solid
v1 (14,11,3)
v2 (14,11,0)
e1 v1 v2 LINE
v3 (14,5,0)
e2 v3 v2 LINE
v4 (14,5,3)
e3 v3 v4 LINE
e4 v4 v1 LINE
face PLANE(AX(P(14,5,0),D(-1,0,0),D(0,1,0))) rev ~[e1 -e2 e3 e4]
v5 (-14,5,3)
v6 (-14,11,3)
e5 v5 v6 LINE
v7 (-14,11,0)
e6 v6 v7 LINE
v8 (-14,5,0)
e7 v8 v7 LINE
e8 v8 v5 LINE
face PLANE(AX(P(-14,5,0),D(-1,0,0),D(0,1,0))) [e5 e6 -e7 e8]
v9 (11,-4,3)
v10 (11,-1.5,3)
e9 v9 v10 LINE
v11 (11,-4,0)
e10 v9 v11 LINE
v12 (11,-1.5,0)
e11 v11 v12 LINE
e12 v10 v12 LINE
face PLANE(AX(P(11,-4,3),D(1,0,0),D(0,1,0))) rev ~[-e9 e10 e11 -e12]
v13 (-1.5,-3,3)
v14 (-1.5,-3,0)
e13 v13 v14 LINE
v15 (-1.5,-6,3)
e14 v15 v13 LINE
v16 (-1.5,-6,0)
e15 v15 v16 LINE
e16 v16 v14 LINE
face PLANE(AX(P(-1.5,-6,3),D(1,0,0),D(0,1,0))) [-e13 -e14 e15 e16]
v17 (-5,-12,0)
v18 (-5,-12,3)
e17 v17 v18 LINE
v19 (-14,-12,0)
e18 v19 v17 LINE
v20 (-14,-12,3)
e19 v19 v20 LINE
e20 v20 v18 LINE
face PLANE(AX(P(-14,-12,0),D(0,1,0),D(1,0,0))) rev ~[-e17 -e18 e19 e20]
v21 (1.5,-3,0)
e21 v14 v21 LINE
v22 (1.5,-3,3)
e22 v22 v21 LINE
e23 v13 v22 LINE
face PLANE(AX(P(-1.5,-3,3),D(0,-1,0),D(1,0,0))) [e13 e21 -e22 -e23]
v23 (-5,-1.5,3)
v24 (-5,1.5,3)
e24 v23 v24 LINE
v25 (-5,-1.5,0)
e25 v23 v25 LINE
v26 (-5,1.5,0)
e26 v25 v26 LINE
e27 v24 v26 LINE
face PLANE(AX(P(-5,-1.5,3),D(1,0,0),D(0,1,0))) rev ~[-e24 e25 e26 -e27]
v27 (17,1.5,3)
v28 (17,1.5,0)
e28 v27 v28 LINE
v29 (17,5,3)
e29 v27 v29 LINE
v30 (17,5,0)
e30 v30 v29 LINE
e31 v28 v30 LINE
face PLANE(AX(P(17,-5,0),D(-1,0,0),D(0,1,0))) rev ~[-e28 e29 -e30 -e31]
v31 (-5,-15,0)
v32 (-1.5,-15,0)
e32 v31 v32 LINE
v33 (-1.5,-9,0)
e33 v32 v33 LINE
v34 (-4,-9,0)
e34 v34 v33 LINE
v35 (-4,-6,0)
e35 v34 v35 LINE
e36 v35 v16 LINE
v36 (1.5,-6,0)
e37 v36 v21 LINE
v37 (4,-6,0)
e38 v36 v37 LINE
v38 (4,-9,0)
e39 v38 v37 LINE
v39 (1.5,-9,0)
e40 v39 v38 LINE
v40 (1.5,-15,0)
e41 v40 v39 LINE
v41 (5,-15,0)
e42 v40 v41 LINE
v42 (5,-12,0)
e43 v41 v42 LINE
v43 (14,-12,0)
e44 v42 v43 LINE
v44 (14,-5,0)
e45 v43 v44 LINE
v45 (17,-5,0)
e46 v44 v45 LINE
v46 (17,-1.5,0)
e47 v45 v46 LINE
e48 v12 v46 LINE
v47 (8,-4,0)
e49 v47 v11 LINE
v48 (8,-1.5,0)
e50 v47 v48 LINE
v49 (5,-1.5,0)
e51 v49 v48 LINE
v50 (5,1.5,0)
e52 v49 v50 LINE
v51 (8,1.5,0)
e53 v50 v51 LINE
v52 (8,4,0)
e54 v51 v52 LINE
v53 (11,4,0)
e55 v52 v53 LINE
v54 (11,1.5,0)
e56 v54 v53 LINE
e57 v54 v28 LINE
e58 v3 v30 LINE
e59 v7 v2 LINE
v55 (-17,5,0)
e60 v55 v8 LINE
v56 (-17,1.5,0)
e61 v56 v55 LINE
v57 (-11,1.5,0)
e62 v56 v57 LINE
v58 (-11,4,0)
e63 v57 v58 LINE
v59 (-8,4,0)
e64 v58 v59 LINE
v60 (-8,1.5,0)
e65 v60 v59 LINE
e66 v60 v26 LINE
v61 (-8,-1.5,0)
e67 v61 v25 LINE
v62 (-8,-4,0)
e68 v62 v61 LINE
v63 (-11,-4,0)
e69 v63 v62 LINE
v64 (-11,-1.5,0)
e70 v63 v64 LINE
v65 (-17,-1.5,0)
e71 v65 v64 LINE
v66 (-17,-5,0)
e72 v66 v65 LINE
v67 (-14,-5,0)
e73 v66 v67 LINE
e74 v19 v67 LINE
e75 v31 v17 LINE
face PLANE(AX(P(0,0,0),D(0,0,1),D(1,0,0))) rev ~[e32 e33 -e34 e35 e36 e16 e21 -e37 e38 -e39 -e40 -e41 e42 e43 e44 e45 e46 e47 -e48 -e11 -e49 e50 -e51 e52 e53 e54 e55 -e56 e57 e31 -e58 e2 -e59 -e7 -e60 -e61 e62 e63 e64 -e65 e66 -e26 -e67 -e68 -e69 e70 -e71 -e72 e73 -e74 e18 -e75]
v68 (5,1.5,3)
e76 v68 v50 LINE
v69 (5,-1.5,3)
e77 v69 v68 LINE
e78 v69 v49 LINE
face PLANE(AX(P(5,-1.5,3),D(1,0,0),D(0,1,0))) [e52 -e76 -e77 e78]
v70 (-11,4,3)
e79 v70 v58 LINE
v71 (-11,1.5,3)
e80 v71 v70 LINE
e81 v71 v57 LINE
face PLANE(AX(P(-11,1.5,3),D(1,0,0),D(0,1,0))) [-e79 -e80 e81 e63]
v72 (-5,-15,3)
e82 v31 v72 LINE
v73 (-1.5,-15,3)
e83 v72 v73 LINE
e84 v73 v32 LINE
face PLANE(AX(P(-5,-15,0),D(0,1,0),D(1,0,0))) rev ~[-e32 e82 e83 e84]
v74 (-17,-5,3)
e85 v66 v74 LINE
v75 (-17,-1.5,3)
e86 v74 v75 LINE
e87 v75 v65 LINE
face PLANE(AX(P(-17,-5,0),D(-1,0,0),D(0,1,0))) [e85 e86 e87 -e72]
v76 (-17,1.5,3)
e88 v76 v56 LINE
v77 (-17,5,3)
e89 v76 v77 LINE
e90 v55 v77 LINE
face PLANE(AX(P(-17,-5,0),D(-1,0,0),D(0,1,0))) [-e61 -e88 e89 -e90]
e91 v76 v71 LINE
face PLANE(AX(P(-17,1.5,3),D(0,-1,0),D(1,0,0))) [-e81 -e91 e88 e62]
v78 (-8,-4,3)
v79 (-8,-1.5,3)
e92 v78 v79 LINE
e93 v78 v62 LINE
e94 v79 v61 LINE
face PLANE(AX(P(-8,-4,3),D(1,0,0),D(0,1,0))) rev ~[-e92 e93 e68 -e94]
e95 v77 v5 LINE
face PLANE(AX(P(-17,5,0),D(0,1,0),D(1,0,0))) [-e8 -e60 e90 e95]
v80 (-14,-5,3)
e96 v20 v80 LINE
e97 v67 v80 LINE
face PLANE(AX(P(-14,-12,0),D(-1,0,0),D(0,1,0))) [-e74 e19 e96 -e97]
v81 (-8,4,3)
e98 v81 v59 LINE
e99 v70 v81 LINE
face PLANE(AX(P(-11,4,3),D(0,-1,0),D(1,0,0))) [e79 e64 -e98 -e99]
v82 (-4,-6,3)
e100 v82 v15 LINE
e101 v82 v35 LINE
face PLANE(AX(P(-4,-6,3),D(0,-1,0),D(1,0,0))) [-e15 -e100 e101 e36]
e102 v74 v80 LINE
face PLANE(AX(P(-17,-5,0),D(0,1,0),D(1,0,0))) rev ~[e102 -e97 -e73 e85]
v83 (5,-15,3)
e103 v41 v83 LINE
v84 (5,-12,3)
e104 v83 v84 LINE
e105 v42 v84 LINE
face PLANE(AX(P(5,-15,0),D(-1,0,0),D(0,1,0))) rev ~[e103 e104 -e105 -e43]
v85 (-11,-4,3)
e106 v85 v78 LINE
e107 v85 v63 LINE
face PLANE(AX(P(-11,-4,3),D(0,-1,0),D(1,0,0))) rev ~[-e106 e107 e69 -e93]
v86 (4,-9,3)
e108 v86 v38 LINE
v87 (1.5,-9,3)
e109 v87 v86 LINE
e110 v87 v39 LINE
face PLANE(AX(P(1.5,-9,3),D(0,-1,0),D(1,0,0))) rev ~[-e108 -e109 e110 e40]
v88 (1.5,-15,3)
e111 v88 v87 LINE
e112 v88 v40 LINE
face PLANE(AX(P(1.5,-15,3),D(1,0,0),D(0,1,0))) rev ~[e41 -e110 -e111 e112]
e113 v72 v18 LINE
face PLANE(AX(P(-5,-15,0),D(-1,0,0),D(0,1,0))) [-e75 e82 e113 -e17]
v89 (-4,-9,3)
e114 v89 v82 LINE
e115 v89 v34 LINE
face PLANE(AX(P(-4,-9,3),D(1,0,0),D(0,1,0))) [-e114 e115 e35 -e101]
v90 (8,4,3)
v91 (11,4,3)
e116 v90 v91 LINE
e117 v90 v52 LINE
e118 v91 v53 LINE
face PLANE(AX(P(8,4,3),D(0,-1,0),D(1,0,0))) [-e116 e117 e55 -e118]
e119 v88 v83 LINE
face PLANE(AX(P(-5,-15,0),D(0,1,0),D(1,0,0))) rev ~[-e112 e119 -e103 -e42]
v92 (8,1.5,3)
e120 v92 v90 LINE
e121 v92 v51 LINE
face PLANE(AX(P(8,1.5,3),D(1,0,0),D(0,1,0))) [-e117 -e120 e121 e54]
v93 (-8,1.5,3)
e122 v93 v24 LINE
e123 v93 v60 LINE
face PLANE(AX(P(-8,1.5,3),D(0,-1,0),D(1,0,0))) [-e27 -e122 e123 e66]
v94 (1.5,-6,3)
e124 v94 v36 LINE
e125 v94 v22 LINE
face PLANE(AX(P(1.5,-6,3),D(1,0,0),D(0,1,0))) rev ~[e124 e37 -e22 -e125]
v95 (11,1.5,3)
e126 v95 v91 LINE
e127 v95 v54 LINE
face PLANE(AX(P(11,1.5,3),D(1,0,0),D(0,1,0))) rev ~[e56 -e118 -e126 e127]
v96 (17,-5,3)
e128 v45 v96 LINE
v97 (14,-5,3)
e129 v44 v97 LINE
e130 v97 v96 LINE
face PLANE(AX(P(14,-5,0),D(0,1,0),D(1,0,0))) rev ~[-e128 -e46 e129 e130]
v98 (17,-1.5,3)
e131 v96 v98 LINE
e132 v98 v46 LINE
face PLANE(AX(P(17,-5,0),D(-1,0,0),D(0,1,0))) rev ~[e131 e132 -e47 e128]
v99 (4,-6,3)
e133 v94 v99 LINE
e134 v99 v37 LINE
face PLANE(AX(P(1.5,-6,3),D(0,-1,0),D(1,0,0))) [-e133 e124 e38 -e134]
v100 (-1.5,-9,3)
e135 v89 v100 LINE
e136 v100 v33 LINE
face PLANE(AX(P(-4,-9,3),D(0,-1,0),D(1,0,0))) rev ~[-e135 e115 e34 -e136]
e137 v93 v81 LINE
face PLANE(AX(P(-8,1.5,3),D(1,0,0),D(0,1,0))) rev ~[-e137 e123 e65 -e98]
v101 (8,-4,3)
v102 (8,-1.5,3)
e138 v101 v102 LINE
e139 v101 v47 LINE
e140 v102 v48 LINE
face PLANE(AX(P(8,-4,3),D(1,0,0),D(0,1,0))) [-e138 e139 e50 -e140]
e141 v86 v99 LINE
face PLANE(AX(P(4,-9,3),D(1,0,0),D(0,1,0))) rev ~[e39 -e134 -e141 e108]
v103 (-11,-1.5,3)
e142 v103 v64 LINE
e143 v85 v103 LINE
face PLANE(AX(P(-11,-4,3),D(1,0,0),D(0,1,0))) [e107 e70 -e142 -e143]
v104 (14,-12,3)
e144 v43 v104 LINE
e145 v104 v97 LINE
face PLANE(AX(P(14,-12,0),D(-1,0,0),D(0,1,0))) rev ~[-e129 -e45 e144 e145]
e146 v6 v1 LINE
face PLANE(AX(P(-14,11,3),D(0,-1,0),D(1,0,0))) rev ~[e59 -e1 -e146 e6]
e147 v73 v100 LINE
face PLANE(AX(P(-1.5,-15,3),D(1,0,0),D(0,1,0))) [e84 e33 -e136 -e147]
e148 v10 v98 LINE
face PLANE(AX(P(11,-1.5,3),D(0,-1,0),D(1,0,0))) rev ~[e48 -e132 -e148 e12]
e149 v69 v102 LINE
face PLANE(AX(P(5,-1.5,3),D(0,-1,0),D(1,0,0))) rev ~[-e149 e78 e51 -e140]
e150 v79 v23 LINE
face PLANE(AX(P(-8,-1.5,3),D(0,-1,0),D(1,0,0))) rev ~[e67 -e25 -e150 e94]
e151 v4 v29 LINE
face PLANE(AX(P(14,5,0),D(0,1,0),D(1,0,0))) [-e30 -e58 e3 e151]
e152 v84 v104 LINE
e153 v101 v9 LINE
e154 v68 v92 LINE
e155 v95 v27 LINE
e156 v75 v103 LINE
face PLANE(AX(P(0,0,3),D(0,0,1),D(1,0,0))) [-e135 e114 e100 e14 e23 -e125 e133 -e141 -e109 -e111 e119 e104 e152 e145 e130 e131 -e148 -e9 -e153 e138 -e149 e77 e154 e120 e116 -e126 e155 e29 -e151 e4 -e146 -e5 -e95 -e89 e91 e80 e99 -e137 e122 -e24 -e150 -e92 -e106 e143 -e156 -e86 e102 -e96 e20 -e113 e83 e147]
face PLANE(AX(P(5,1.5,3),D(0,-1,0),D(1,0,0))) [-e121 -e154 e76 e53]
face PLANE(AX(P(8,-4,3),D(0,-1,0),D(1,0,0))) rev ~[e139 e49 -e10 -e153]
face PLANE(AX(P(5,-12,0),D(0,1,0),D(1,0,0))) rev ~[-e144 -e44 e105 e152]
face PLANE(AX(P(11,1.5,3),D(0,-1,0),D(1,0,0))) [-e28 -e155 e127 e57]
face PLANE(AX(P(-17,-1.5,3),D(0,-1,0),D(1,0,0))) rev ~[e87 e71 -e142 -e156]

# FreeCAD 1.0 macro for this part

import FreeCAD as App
import Part
import Sketcher


def add_polygon(sketch, points):
    """Adds a closed chain of lines whose ends are joined by coincident constraints."""
    first, n = sketch.GeometryCount, len(points)
    for a, b in zip(points, points[1:] + points[:1]):
        sketch.addGeometry(Part.LineSegment(App.Vector(*a, 0), App.Vector(*b, 0)), False)
    for i in range(n):
        sketch.addConstraint(Sketcher.Constraint("Coincident", first + i, 2, first + (i + 1) % n, 1))

doc = App.newDocument("Part")
body = doc.addObject("PartDesign::Body", "Body")

# Sketch on XY plane
sketch1 = body.newObject("Sketcher::SketchObject", "Sketch")
sketch1.AttachmentSupport = (doc.getObject("XY_Plane"), [""])
sketch1.MapMode = "FlatFace"
add_polygon(sketch1, [(-14, -5), (-14, -12), (-5, -12), (-5, -15), (5, -15), (5, -12), (14, -12), (14, -5), (17, -5), (17, 5), (14, 5), (14, 12), (-14, 12), (-14, 5), (-17, 5), (-17, -5)])  # lines 0-15
sketch1.addConstraint([
    Sketcher.Constraint("Vertical", 0),
    Sketcher.Constraint("Horizontal", 1),
    Sketcher.Constraint("Vertical", 2),
    Sketcher.Constraint("Horizontal", 3),
    Sketcher.Constraint("Vertical", 4),
    Sketcher.Constraint("Horizontal", 5),
    Sketcher.Constraint("Vertical", 6),
    Sketcher.Constraint("Horizontal", 7),
    Sketcher.Constraint("Vertical", 8),
    Sketcher.Constraint("Horizontal", 9),
    Sketcher.Constraint("Vertical", 10),
    Sketcher.Constraint("Horizontal", 11),
    Sketcher.Constraint("Vertical", 12),
    Sketcher.Constraint("Horizontal", 13),
    Sketcher.Constraint("Vertical", 14),
    Sketcher.Constraint("Horizontal", 15),
    Sketcher.Constraint("Symmetric", 0, 2, 10, 2, -1, 1),
    Sketcher.Constraint("Symmetric", 5, 2, 11, 2, -1, 1),
    Sketcher.Constraint("Symmetric", 7, 2, 13, 2, -1, 1),
    Sketcher.Constraint("Symmetric", 9, 2, 12, 2, -2),
    Sketcher.Constraint("Horizontal", 7, 2, 14, 2),
    Sketcher.Constraint("Equal", 1, 5),
    Sketcher.Constraint("Equal", 15, 2),
    Sketcher.Constraint("Equal", 3, 8),
    Sketcher.Constraint("DistanceX", 1, 1, 1, 2, 9.0),
    Sketcher.Constraint("DistanceX", 3, 1, 3, 2, 10.0),
    Sketcher.Constraint("DistanceX", 7, 1, 7, 2, 3.0),
    Sketcher.Constraint("DistanceY", 0, 2, 0, 1, 7.0),
])
pad1 = body.newObject("PartDesign::Pad", "Pad")
pad1.Profile = sketch1
pad1.Length = 3

# Sketch on XY plane
sketch2 = body.newObject("Sketcher::SketchObject", "Sketch001")
sketch2.AttachmentSupport = (doc.getObject("XY_Plane"), [""])
sketch2.MapMode = "FlatFace"
sketch2.AttachmentOffset = App.Placement(App.Vector(0, 0, 3), App.Rotation())
add_polygon(sketch2, [(-17, 1.5), (-17, -1.5), (-11, -1.5), (-11, -4), (-8, -4), (-8, -1.5), (-5, -1.5), (-5, 1.5), (-8, 1.5), (-8, 4), (-11, 4), (-11, 1.5)])  # lines 0-11
add_polygon(sketch2, [(5, 1.5), (5, -1.5), (8, -1.5), (8, -4), (11, -4), (11, -1.5), (17, -1.5), (17, 1.5), (11, 1.5), (11, 4), (8, 4), (8, 1.5)])  # lines 12-23
add_polygon(sketch2, [(-4, -6), (-4, -9), (-1.5, -9), (-1.5, -15), (1.5, -15), (1.5, -9), (4, -9), (4, -6), (1.5, -6), (1.5, -3), (-1.5, -3), (-1.5, -6)])  # lines 24-35
sketch2.addConstraint([
    Sketcher.Constraint("Vertical", 0),
    Sketcher.Constraint("Horizontal", 1),
    Sketcher.Constraint("Vertical", 2),
    Sketcher.Constraint("Horizontal", 3),
    Sketcher.Constraint("Vertical", 4),
    Sketcher.Constraint("Horizontal", 5),
    Sketcher.Constraint("Vertical", 6),
    Sketcher.Constraint("Horizontal", 7),
    Sketcher.Constraint("Vertical", 8),
    Sketcher.Constraint("Horizontal", 9),
    Sketcher.Constraint("Vertical", 10),
    Sketcher.Constraint("Horizontal", 11),
    Sketcher.Constraint("Vertical", 12),
    Sketcher.Constraint("Horizontal", 13),
    Sketcher.Constraint("Vertical", 14),
    Sketcher.Constraint("Horizontal", 15),
    Sketcher.Constraint("Vertical", 16),
    Sketcher.Constraint("Horizontal", 17),
    Sketcher.Constraint("Vertical", 18),
    Sketcher.Constraint("Horizontal", 19),
    Sketcher.Constraint("Vertical", 20),
    Sketcher.Constraint("Horizontal", 21),
    Sketcher.Constraint("Vertical", 22),
    Sketcher.Constraint("Horizontal", 23),
    Sketcher.Constraint("Vertical", 24),
    Sketcher.Constraint("Horizontal", 25),
    Sketcher.Constraint("Vertical", 26),
    Sketcher.Constraint("Horizontal", 27),
    Sketcher.Constraint("Vertical", 28),
    Sketcher.Constraint("Horizontal", 29),
    Sketcher.Constraint("Vertical", 30),
    Sketcher.Constraint("Horizontal", 31),
    Sketcher.Constraint("Vertical", 32),
    Sketcher.Constraint("Horizontal", 33),
    Sketcher.Constraint("Vertical", 34),
    Sketcher.Constraint("Horizontal", 35),
    Sketcher.Constraint("Symmetric", 6, 2, 12, 2, -1, 1),
    Sketcher.Constraint("Symmetric", 8, 2, 14, 2, -1, 1),
    Sketcher.Constraint("Symmetric", 10, 2, 16, 2, -1, 1),
    Sketcher.Constraint("Symmetric", 0, 2, 18, 2, -1, 1),
    Sketcher.Constraint("Symmetric", 2, 2, 20, 2, -1, 1),
    Sketcher.Constraint("Symmetric", 4, 2, 22, 2, -1, 1),
    Sketcher.Constraint("Symmetric", 4, 2, 13, 2, -2),
    Sketcher.Constraint("Symmetric", 2, 2, 15, 2, -2),
    Sketcher.Constraint("Symmetric", 25, 2, 28, 2, -2),
    Sketcher.Constraint("Symmetric", 31, 2, 34, 2, -2),
    Sketcher.Constraint("Horizontal", 1, 2, 4, 2),
    Sketcher.Constraint("Horizontal", 7, 2, 10, 2),
    Sketcher.Constraint("Vertical", 28, 2, 31, 2),
    Sketcher.Constraint("Equal", 3, 5),
    Sketcher.Constraint("Equal", 23, 27),
    Sketcher.Constraint("Equal", 25, 29),
    Sketcher.Constraint("Equal", 33, 0),
    Sketcher.Constraint("Equal", 35, 2),
    Sketcher.Constraint("Equal", 18, 24),
    Sketcher.Constraint("Equal", 19, 26),
    Sketcher.Constraint("Equal", 30, 32),
    Sketcher.Constraint("DistanceX", 1, 1, 1, 2, 6.0),
    Sketcher.Constraint("DistanceX", 3, 1, 3, 2, 3.0),
    Sketcher.Constraint("DistanceX", 25, 1, 25, 2, 2.5),
    Sketcher.Constraint("DistanceX", 0, 2, -1, 1, 17.0),
    Sketcher.Constraint("DistanceY", 24, 2, -1, 1, 9.0),
])
pocket1 = body.newObject("PartDesign::Pocket", "Pocket")
pocket1.Profile = sketch2
pocket1.Length = 3

# Sketch on XY plane
sketch3 = body.newObject("Sketcher::SketchObject", "Sketch002")
sketch3.AttachmentSupport = (doc.getObject("XY_Plane"), [""])
sketch3.MapMode = "FlatFace"
sketch3.AttachmentOffset = App.Placement(App.Vector(0, 0, 3), App.Rotation())
add_polygon(sketch3, [(-14, 12), (-14, 11), (14, 11), (14, 12)])  # lines 0-3
sketch3.addConstraint([
    Sketcher.Constraint("Vertical", 0),
    Sketcher.Constraint("Horizontal", 1),
    Sketcher.Constraint("Vertical", 2),
    Sketcher.Constraint("Horizontal", 3),
    Sketcher.Constraint("DistanceX", 1, 1, 1, 2, 28.0),
    Sketcher.Constraint("DistanceY", 0, 2, 0, 1, 1.0),
    Sketcher.Constraint("DistanceX", 0, 2, -1, 1, 14.0),
    Sketcher.Constraint("DistanceY", -1, 1, 0, 2, 11.0),
])
pocket2 = body.newObject("PartDesign::Pocket", "Pocket001")
pocket2.Profile = sketch3
pocket2.Length = 3

doc.recompute()
